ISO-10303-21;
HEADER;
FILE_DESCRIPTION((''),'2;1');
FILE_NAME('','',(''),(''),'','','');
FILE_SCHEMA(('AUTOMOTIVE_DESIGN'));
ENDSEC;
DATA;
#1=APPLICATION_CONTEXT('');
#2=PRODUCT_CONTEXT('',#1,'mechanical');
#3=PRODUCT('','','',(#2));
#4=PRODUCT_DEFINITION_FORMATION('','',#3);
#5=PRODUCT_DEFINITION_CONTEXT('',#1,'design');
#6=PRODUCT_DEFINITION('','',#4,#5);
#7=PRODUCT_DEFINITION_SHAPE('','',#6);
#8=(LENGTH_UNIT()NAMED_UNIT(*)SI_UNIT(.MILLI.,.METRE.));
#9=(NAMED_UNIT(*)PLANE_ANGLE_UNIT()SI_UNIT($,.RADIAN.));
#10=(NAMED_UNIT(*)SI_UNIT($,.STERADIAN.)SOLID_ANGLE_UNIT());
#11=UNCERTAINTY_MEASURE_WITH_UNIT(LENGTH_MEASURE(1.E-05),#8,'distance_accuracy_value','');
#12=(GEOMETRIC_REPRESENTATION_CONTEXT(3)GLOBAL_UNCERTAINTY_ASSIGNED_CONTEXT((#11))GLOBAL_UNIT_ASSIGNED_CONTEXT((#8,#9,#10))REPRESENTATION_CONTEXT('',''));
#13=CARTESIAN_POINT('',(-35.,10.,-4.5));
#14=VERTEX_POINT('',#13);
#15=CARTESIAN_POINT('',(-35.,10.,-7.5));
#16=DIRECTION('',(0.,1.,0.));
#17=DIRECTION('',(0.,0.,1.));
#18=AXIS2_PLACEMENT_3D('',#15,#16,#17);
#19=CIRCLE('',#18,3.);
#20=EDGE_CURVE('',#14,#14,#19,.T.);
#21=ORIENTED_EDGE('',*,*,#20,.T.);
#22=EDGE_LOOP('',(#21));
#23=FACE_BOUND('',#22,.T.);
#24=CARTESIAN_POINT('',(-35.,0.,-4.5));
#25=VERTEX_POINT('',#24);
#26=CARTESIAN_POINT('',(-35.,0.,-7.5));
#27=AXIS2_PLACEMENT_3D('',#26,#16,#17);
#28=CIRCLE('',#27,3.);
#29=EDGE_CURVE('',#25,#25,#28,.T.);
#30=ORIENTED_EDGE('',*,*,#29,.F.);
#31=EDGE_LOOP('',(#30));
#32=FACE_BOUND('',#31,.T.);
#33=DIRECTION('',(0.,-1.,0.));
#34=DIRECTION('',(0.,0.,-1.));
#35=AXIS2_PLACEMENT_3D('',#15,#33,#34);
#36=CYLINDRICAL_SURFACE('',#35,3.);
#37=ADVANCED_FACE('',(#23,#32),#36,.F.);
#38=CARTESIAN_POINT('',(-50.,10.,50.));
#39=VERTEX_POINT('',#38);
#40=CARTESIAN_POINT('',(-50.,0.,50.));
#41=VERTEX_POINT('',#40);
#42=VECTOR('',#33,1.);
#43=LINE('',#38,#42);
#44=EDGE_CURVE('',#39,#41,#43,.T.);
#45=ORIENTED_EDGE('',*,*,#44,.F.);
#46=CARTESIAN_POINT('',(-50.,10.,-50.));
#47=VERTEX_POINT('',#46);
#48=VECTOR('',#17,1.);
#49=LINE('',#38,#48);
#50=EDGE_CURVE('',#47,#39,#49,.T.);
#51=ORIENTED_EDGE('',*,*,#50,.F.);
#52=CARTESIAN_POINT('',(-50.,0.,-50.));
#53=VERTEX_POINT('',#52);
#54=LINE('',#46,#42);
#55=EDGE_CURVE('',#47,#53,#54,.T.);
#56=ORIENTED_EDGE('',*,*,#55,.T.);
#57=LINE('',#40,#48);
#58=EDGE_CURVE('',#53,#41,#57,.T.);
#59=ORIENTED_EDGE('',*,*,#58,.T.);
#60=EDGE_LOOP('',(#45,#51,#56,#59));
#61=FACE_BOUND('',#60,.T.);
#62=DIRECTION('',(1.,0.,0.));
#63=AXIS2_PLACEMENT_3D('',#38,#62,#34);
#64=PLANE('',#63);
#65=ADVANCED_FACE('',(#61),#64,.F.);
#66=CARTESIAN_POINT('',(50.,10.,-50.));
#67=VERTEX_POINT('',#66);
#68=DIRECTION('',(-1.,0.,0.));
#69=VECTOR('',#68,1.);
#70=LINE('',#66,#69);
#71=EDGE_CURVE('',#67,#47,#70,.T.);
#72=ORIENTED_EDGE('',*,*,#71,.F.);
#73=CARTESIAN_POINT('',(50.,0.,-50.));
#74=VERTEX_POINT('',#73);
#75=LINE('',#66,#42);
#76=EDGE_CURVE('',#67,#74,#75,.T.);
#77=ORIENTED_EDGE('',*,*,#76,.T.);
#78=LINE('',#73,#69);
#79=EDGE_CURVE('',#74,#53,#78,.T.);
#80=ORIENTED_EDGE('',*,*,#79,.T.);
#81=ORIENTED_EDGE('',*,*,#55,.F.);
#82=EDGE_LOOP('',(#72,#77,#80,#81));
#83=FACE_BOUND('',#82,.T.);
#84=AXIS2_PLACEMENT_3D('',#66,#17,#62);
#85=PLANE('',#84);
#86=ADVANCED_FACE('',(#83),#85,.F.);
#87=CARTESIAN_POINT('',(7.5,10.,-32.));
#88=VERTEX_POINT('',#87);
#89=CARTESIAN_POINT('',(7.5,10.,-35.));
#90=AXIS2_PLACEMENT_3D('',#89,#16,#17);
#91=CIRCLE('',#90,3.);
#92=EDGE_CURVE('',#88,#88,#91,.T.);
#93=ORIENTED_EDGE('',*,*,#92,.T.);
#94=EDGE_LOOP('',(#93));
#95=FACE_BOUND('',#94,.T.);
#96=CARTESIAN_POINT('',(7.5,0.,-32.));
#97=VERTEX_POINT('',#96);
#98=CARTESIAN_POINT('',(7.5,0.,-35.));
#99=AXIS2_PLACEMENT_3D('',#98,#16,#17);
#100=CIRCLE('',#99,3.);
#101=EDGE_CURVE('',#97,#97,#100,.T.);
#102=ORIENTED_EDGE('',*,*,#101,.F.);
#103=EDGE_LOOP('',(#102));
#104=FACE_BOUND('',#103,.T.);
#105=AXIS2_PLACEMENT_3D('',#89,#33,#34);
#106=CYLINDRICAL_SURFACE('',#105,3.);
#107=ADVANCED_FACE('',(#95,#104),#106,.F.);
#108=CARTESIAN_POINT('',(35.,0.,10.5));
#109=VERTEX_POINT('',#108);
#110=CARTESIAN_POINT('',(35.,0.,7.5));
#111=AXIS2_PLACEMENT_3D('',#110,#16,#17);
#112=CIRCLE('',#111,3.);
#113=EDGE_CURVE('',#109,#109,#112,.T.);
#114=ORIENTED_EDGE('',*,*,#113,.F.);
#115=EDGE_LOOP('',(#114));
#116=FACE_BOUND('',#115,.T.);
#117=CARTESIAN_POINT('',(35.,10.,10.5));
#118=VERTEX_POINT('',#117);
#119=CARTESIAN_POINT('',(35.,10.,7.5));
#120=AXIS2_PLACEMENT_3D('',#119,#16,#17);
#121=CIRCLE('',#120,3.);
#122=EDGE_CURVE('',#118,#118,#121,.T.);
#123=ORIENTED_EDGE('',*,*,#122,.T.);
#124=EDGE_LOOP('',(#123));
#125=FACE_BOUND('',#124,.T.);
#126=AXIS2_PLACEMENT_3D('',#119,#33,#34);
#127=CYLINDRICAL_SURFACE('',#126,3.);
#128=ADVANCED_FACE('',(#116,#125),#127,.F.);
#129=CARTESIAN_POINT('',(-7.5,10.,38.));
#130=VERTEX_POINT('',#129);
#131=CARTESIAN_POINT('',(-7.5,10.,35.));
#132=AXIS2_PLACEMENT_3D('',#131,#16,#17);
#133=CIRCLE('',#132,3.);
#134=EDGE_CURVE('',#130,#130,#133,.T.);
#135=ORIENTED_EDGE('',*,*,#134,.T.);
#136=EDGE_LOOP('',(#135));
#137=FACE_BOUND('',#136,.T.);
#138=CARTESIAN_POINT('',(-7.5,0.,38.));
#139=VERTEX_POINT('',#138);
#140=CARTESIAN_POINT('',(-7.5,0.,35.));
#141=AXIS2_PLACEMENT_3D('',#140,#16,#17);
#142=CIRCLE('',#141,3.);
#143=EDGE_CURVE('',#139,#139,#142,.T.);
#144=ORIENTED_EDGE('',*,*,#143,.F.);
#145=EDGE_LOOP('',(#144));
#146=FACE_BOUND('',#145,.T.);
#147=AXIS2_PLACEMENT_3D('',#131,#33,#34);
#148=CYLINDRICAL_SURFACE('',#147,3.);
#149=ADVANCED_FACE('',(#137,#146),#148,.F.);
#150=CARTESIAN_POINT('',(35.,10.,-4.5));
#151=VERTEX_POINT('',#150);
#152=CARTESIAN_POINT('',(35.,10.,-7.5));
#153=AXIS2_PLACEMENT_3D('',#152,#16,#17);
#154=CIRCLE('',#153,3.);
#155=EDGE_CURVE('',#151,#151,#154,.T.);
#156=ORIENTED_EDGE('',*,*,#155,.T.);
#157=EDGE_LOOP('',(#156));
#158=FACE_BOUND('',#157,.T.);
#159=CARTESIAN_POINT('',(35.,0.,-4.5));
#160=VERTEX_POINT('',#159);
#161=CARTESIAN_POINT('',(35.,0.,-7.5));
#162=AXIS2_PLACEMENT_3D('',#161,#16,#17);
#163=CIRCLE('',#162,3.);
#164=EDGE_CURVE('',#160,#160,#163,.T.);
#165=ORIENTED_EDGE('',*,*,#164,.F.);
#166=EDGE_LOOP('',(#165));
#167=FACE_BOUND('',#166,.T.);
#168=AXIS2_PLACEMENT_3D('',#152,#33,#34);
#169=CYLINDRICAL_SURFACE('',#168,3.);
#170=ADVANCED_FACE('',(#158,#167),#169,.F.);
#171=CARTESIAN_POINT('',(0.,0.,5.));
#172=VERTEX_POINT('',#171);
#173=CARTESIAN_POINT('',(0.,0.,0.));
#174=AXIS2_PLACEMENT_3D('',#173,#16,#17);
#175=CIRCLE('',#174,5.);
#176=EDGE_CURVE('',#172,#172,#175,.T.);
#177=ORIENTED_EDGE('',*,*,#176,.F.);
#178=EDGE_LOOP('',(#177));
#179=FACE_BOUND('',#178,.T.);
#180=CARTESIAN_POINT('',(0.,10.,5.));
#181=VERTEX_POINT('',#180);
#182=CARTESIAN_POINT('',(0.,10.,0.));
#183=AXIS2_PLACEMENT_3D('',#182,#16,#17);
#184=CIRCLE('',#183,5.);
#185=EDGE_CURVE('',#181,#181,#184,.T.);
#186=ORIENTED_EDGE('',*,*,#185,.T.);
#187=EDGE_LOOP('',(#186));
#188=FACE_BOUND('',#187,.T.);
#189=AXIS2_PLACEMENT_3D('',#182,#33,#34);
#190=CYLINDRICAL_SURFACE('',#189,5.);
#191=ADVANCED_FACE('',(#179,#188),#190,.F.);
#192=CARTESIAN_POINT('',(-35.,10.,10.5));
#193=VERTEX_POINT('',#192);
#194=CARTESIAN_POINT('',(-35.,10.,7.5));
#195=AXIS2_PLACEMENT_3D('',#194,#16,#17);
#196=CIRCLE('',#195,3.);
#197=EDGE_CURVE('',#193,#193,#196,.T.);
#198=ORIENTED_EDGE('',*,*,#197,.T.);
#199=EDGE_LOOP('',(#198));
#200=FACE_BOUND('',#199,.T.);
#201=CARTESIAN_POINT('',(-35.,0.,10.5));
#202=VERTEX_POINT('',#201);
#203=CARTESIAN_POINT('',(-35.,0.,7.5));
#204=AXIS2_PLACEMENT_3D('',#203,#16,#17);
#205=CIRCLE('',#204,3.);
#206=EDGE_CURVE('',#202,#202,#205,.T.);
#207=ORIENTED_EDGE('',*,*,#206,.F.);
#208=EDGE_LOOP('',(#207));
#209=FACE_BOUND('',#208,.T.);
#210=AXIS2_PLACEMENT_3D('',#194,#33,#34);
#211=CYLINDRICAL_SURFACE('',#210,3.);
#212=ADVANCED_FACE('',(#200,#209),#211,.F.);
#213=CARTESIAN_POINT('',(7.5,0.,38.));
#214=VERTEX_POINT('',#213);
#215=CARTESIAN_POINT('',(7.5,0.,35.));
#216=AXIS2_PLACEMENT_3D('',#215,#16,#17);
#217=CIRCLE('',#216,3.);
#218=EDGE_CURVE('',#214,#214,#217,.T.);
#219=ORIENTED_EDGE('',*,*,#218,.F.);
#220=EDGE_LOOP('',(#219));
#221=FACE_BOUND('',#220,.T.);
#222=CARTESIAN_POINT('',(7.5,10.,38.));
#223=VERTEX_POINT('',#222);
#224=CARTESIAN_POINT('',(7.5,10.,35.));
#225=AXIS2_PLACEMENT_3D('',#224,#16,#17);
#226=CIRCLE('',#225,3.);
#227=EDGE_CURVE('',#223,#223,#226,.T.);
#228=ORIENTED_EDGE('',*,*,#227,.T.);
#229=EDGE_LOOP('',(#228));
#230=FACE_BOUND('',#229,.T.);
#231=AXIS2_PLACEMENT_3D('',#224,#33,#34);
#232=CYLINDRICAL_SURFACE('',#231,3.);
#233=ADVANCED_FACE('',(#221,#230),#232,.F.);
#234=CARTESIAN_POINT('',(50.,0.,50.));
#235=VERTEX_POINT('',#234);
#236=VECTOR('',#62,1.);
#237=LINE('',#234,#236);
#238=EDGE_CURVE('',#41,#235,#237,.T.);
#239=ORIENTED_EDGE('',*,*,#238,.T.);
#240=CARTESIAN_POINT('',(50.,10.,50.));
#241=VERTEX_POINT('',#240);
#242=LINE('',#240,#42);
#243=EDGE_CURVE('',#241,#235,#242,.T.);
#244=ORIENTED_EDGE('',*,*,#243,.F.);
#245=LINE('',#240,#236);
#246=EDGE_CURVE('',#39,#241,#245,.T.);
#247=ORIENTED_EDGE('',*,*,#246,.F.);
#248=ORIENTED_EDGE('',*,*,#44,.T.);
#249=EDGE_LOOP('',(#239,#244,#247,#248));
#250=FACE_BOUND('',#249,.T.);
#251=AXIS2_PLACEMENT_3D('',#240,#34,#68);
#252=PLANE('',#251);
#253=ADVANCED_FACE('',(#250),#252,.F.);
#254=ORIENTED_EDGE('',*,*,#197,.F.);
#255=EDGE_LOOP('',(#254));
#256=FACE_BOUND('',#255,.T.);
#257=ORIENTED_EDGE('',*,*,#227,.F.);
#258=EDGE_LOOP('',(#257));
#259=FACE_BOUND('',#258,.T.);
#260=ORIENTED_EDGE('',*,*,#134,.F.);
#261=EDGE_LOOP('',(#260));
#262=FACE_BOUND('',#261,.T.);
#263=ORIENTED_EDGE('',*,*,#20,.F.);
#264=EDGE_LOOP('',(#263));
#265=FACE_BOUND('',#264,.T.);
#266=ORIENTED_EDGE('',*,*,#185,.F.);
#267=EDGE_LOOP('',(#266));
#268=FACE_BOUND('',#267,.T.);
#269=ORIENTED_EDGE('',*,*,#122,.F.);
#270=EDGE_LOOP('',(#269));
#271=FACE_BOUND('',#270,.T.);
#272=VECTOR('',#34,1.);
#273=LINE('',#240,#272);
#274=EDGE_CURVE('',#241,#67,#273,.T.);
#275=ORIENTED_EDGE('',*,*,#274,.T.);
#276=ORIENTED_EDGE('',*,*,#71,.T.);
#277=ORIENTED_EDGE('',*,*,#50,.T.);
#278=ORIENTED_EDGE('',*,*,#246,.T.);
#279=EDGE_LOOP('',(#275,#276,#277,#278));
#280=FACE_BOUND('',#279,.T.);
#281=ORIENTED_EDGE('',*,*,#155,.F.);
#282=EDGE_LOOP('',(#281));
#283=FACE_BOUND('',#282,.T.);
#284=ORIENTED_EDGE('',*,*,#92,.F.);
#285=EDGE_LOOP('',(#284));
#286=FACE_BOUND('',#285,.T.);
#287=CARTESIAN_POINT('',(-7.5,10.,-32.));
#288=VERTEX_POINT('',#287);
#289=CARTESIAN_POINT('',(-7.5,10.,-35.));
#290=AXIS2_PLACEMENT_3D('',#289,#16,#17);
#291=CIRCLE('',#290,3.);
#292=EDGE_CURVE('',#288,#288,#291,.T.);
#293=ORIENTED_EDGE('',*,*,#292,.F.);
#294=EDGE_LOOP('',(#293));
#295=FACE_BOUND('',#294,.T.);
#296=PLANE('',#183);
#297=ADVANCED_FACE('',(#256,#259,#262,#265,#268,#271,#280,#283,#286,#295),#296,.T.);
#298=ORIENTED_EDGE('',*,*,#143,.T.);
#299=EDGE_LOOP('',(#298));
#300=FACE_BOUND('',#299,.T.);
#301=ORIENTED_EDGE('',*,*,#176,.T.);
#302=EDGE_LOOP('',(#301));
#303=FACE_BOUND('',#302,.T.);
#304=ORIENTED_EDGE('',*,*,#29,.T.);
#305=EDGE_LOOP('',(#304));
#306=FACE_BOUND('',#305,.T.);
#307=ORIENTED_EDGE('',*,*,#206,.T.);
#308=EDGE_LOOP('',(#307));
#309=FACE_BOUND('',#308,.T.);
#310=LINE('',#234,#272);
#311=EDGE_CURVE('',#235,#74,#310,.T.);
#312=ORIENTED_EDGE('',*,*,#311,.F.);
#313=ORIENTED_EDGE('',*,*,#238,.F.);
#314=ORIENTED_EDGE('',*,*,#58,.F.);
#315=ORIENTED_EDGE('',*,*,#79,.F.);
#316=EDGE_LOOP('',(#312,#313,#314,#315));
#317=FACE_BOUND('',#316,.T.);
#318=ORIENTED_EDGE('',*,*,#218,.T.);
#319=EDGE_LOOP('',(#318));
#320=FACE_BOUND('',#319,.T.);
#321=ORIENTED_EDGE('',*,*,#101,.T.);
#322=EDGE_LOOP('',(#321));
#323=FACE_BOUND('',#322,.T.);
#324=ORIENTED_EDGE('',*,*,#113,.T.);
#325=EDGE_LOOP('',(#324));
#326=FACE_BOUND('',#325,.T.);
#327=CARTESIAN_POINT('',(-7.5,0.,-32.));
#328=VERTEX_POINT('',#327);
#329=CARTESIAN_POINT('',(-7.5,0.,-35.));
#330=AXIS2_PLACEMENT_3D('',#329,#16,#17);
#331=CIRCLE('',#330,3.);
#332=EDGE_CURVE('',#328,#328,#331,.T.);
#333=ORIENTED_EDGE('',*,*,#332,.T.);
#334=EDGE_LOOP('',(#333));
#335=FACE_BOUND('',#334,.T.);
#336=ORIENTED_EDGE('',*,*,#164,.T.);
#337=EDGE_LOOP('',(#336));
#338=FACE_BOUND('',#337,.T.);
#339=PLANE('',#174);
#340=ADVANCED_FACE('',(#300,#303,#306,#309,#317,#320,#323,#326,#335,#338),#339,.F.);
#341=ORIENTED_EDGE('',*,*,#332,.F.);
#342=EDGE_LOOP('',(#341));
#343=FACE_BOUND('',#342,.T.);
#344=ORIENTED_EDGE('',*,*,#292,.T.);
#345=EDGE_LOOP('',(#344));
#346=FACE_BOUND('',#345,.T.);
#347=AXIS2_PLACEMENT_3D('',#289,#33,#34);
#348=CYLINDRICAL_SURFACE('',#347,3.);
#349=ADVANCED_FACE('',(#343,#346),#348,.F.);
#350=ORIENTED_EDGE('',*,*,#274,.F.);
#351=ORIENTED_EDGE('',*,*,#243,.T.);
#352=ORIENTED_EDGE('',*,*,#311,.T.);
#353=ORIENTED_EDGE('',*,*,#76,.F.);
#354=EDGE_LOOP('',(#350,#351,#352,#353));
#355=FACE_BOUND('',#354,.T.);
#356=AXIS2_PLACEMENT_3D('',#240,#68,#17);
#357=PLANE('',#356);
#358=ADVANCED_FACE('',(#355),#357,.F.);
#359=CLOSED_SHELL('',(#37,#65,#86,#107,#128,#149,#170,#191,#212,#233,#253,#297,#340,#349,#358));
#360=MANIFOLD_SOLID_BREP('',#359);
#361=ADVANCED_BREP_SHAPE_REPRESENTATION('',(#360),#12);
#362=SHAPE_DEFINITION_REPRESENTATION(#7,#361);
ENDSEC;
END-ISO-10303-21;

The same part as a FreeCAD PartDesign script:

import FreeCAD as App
import Part
import Sketcher
Q = App.Units.Quantity

doc = App.newDocument("Part")
body = doc.addObject("PartDesign::Body", "Body")

sketch1 = body.newObject("Sketcher::SketchObject", "Sketch")
sketch1.AttachmentSupport = (doc.getObject("XZ_Plane"), [""])
sketch1.MapMode = "FlatFace"
sketch1.addGeometry(Part.LineSegment(App.Vector(-50, -50, 0), App.Vector(-50, 50, 0)), False)
sketch1.addGeometry(Part.LineSegment(App.Vector(-50, 50, 0), App.Vector(50, 50, 0)), False)
sketch1.addGeometry(Part.LineSegment(App.Vector(50, 50, 0), App.Vector(50, -50, 0)), False)
sketch1.addGeometry(Part.LineSegment(App.Vector(50, -50, 0), App.Vector(-50, -50, 0)), False)
sketch1.addGeometry(Part.Circle(App.Vector(-7.5, 35, 0), App.Vector(0, 0, 1), 3), False)
sketch1.addGeometry(Part.Circle(App.Vector(-35, 7.5, 0), App.Vector(0, 0, 1), 3), False)
sketch1.addGeometry(Part.Circle(App.Vector(7.5, 35, 0), App.Vector(0, 0, 1), 3), False)
sketch1.addGeometry(Part.Circle(App.Vector(35, 7.5, 0), App.Vector(0, 0, 1), 3), False)
sketch1.addGeometry(Part.Circle(App.Vector(-35, -7.5, 0), App.Vector(0, 0, 1), 3), False)
sketch1.addGeometry(Part.Circle(App.Vector(-7.5, -35, 0), App.Vector(0, 0, 1), 3), False)
sketch1.addGeometry(Part.Circle(App.Vector(0, 0, 0), App.Vector(0, 0, 1), 5), False)
sketch1.addGeometry(Part.Circle(App.Vector(35, -7.5, 0), App.Vector(0, 0, 1), 3), False)
sketch1.addGeometry(Part.Circle(App.Vector(7.5, -35, 0), App.Vector(0, 0, 1), 3), False)
sketch1.addConstraint(Sketcher.Constraint("Coincident", 0, 2, 1, 1))
sketch1.addConstraint(Sketcher.Constraint("Coincident", 1, 2, 2, 1))
sketch1.addConstraint(Sketcher.Constraint("Coincident", 2, 2, 3, 1))
sketch1.addConstraint(Sketcher.Constraint("Coincident", 3, 2, 0, 1))
sketch1.addConstraint(Sketcher.Constraint("Vertical", 0))
sketch1.addConstraint(Sketcher.Constraint("Horizontal", 1))
sketch1.addConstraint(Sketcher.Constraint("Vertical", 2))
sketch1.addConstraint(Sketcher.Constraint("Horizontal", 3))
sketch1.addConstraint(Sketcher.Constraint("Coincident", 10, 3, -1, 1))
sketch1.addConstraint(Sketcher.Constraint("Equal", 4, 5))
sketch1.addConstraint(Sketcher.Constraint("Equal", 5, 6))
sketch1.addConstraint(Sketcher.Constraint("Equal", 6, 7))
sketch1.addConstraint(Sketcher.Constraint("Equal", 7, 8))
sketch1.addConstraint(Sketcher.Constraint("Equal", 8, 9))
sketch1.addConstraint(Sketcher.Constraint("Equal", 9, 11))
sketch1.addConstraint(Sketcher.Constraint("Equal", 11, 12))
sketch1.addConstraint(Sketcher.Constraint("Symmetric", 7, 3, 8, 3, -1, 1))
sketch1.addConstraint(Sketcher.Constraint("Symmetric", 6, 3, 9, 3, -1, 1))
sketch1.addConstraint(Sketcher.Constraint("Symmetric", 5, 3, 11, 3, -1, 1))
sketch1.addConstraint(Sketcher.Constraint("Symmetric", 4, 3, 12, 3, -1, 1))
sketch1.addConstraint(Sketcher.Constraint("Symmetric", 0, 2, 2, 2, -1, 1))
sketch1.addConstraint(Sketcher.Constraint("Symmetric", 4, 3, 6, 3, -2))
sketch1.addConstraint(Sketcher.Constraint("Symmetric", 5, 3, 7, 3, -2))
sketch1.addConstraint(Sketcher.Constraint("Equal", 3, 0))
sketch1.addConstraint(Sketcher.Constraint("Diameter", 4, Q("6 mm")))
sketch1.addConstraint(Sketcher.Constraint("Diameter", 10, Q("10 mm")))
sketch1.addConstraint(Sketcher.Constraint("DistanceX", 1, 1, 1, 2, Q("100 mm")))
sketch1.addConstraint(Sketcher.Constraint("DistanceY", -1, 1, 4, 3, Q("35 mm")))
sketch1.addConstraint(Sketcher.Constraint("DistanceX", 5, 3, -1, 1, Q("35 mm")))
sketch1.addConstraint(Sketcher.Constraint("DistanceX", 4, 3, 6, 3, Q("15 mm")))
sketch1.addConstraint(Sketcher.Constraint("DistanceY", 8, 3, 5, 3, Q("15 mm")))
pad1 = body.newObject("PartDesign::Pad", "Pad")
pad1.Profile = sketch1
pad1.Length = 10
pad1.Reversed = True

doc.recompute()
